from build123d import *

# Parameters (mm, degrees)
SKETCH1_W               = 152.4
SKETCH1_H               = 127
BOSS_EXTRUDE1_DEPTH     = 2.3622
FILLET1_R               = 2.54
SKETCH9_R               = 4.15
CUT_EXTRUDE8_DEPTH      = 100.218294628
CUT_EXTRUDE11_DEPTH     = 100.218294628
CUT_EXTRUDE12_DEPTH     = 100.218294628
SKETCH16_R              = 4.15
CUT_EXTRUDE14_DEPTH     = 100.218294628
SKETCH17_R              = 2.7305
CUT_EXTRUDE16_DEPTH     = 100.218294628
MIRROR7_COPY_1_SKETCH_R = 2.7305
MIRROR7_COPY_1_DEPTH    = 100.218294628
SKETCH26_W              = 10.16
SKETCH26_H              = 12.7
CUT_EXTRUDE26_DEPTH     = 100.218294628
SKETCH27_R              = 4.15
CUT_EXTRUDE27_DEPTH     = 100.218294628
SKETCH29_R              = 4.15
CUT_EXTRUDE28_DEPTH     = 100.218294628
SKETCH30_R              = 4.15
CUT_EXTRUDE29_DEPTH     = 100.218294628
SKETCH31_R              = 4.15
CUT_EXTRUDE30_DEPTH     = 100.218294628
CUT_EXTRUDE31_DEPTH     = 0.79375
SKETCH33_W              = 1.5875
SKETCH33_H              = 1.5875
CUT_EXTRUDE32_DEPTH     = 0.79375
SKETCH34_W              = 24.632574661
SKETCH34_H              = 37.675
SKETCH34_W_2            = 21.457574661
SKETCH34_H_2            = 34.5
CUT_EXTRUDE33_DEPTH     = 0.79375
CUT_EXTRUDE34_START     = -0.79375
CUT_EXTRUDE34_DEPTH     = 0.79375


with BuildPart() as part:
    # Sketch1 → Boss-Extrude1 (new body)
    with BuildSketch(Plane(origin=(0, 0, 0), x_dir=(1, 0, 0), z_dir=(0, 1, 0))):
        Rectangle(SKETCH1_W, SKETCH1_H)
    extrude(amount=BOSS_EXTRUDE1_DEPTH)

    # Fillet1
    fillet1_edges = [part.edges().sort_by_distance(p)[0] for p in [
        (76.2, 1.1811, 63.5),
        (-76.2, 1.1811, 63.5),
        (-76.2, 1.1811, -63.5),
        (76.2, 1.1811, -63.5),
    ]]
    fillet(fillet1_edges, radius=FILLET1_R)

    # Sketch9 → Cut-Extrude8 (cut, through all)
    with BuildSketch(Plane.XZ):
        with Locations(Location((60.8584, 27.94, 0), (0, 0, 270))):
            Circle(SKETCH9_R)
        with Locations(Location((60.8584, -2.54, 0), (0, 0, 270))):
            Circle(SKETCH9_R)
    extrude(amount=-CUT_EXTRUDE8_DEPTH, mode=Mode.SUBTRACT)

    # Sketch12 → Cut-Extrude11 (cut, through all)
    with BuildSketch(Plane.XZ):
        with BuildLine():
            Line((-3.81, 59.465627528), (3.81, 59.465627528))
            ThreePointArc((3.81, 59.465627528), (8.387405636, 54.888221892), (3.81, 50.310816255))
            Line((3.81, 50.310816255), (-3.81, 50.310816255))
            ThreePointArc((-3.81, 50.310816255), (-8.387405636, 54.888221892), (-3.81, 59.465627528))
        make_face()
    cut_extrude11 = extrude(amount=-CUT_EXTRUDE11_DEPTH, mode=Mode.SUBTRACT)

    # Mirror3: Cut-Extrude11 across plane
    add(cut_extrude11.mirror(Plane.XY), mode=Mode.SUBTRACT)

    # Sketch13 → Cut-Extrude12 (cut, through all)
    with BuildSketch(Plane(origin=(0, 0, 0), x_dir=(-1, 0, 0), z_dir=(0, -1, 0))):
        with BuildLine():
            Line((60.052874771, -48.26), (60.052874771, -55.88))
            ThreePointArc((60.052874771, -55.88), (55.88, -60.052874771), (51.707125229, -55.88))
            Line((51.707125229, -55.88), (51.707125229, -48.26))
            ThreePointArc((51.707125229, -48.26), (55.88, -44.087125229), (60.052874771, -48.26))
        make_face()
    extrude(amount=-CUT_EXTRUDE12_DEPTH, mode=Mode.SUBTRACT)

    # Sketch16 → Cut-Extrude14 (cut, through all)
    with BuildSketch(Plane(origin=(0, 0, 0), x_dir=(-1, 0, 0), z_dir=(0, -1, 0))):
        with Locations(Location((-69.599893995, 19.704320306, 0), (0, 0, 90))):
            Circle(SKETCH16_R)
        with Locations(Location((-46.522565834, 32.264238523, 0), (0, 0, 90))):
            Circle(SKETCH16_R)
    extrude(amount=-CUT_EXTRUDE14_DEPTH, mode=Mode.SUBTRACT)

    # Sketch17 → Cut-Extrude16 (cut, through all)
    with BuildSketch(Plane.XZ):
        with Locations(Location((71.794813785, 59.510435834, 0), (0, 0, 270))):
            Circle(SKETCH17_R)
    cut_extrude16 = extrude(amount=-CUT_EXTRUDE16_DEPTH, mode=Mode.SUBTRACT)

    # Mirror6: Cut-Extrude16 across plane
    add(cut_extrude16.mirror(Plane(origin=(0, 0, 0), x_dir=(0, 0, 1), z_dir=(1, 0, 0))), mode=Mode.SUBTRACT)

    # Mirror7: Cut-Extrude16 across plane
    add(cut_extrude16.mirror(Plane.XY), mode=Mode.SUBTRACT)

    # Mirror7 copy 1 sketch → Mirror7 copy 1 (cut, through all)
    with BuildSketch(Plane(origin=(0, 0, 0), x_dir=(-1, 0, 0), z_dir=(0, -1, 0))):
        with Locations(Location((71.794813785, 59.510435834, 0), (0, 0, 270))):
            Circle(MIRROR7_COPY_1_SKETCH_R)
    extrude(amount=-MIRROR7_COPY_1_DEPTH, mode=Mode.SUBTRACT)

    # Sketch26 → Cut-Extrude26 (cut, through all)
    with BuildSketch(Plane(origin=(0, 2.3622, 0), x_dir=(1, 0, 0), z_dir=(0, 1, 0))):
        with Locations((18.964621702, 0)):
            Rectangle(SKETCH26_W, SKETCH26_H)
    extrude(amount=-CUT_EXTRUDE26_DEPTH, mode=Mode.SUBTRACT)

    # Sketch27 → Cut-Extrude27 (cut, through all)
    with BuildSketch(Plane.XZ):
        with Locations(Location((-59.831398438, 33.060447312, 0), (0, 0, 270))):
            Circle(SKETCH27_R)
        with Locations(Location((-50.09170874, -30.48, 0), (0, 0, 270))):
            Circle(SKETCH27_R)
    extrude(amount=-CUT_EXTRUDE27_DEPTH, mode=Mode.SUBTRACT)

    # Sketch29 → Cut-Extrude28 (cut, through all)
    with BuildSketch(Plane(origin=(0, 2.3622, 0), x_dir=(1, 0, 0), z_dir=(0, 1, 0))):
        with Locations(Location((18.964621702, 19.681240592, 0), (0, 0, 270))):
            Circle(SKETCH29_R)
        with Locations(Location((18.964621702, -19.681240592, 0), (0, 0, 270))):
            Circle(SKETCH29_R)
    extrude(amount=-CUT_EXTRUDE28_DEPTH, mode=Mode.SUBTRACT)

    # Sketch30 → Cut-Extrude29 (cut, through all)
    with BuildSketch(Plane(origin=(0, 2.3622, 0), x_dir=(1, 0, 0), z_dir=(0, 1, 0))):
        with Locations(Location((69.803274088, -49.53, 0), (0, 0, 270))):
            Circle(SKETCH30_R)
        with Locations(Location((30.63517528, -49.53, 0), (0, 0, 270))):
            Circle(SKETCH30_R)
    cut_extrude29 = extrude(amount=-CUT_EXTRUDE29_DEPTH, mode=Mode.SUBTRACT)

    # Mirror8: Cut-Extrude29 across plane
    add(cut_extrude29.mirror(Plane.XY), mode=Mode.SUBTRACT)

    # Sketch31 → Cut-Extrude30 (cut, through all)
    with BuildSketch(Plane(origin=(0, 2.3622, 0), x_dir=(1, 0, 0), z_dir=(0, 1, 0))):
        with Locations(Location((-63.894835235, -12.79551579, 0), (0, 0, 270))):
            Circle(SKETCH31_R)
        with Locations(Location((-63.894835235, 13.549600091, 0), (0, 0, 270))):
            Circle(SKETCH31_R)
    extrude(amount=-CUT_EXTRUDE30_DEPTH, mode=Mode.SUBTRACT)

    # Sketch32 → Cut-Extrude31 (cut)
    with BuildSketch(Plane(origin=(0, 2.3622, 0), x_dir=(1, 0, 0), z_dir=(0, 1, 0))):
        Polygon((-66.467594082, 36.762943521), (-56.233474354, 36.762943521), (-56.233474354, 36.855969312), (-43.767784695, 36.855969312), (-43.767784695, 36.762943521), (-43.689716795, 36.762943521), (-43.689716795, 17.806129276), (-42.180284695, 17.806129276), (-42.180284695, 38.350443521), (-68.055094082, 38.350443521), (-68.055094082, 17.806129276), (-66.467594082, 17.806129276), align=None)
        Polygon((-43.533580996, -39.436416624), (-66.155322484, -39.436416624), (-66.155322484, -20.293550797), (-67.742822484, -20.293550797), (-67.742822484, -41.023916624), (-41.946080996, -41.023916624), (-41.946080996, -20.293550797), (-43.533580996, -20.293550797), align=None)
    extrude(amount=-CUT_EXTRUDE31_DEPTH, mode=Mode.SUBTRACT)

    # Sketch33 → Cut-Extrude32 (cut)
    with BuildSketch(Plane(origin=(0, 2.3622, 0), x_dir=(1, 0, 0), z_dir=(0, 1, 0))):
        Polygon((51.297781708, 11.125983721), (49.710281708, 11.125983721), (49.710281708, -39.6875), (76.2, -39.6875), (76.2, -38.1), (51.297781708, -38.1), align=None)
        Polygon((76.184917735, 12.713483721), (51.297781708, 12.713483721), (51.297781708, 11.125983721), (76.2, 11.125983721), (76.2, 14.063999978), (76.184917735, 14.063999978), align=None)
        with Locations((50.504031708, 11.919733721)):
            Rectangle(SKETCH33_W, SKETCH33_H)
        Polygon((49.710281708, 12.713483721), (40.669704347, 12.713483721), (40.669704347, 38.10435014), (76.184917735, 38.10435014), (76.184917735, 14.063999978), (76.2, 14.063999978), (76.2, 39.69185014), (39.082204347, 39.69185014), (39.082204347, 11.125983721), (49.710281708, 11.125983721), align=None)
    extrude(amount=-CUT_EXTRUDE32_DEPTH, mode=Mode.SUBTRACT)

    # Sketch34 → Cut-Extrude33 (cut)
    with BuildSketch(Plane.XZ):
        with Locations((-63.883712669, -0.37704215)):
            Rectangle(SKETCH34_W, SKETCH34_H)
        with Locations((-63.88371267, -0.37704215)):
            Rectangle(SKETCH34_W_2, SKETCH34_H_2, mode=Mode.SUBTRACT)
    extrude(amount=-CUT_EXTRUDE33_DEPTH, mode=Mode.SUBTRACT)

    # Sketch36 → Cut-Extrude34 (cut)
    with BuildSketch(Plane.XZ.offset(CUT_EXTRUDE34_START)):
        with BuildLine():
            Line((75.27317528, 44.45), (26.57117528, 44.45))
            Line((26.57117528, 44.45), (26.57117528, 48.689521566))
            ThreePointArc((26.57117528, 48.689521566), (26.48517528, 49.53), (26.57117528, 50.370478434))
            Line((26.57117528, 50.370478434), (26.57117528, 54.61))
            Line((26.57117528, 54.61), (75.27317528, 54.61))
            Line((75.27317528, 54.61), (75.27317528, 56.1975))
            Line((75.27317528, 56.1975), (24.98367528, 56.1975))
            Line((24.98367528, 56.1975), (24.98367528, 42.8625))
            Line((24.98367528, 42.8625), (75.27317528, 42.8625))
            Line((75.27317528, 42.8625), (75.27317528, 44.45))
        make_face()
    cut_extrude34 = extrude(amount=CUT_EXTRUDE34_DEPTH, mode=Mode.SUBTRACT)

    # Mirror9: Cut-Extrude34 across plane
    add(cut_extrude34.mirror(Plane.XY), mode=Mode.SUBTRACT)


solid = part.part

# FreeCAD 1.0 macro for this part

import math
import FreeCAD as App
import Part
import Sketcher

V = App.Vector
Q = App.Units.Quantity


def edges_at(feature, points):
    """Names of the edges that pass closest to the given points."""
    edges = feature.Shape.Edges
    near = lambda p: min(range(len(edges)), key=lambda i: edges[i].distToShape(Part.Vertex(*p))[0])
    return sorted({f"Edge{near(p) + 1}" for p in points})

doc = App.newDocument("Part")
body = doc.addObject("PartDesign::Body", "Body")

# Sketch on XZ plane
sketch1 = doc.addObject("Sketcher::SketchObject", "Sketch")
body.addObject(sketch1)
sketch1.AttachmentSupport = (doc.XZ_Plane, [""])
sketch1.MapMode = "FlatFace"
sketch1.addGeometry([
    Part.LineSegment(V(-76, -64, 0), V(-76, 64, 0)),
    Part.LineSegment(V(-76, 64, 0), V(76, 64, 0)),
    Part.LineSegment(V(76, 64, 0), V(76, -64, 0)),
    Part.LineSegment(V(76, -64, 0), V(-76, -64, 0)),
], False)
sketch1.addConstraint([
    Sketcher.Constraint("Coincident", 0, 2, 1, 1),
    Sketcher.Constraint("Coincident", 1, 2, 2, 1),
    Sketcher.Constraint("Coincident", 2, 2, 3, 1),
    Sketcher.Constraint("Coincident", 3, 2, 0, 1),
    Sketcher.Constraint("Vertical", 0),
    Sketcher.Constraint("Horizontal", 1),
    Sketcher.Constraint("Vertical", 2),
    Sketcher.Constraint("Horizontal", 3),
    Sketcher.Constraint("Symmetric", 0, 2, 2, 2, -1, 1),
    Sketcher.Constraint("DistanceX", 1, 1, 1, 2, Q("6 in")),
    Sketcher.Constraint("DistanceY", 0, 1, 0, 2, Q("5 in")),
])
pad1 = doc.addObject("PartDesign::Pad", "Pad")
body.addObject(pad1)
pad1.Profile = sketch1
pad1.Length = Q("0.093 in")
pad1.Reversed = True
doc.recompute()

fillet = doc.addObject("PartDesign::Fillet", "Fillet")
body.addObject(fillet)
fillet.Base = (pad1, edges_at(pad1, [
    (76.2, 1.181, 63.5),
    (-76.2, 1.181, 63.5),
    (-76.2, 1.181, -63.5),
    (76.2, 1.181, -63.5),
]))
fillet.Radius = Q("0.1 in")

# Sketch on XZ plane
sketch2 = doc.addObject("Sketcher::SketchObject", "Sketch001")
body.addObject(sketch2)
sketch2.AttachmentSupport = (doc.XZ_Plane, [""])
sketch2.MapMode = "FlatFace"
sketch2.addGeometry([
    Part.Circle(V(60.9, 27.9, 0), V(0, 0, 1), 4.2),
    Part.Circle(V(60.9, -2.5, 0), V(0, 0, 1), 4.2),
], False)
sketch2.addConstraint([
    Sketcher.Constraint("Equal", 0, 1),
    Sketcher.Constraint("Vertical", 0, 3, 1, 3),
    Sketcher.Constraint("DistanceY", -1, 1, 0, 3, Q("1.1 in")),
    Sketcher.Constraint("DistanceY", 1, 3, -1, 1, Q("0.1 in")),
    Sketcher.Constraint("Diameter", 0, 8.3),
    Sketcher.Constraint("DistanceX", -1, 1, 0, 3, Q("2.396 in")),
])
pocket1 = doc.addObject("PartDesign::Pocket", "Pocket")
body.addObject(pocket1)
pocket1.Profile = sketch2
pocket1.Type = "ThroughAll"

# Sketch on XZ plane
sketch3 = doc.addObject("Sketcher::SketchObject", "Sketch002")
body.addObject(sketch3)
sketch3.AttachmentSupport = (doc.XZ_Plane, [""])
sketch3.MapMode = "FlatFace"
sketch3.addGeometry([
    Part.LineSegment(V(3.8, 59.5, 0), V(-3.8, 59.5, 0)),
    Part.ArcOfCircle(Part.Circle(V(-3.8, 54.9, 0), V(0, 0, 1), 4.6), math.radians(90), math.radians(270)),
    Part.LineSegment(V(-3.8, 50.3, 0), V(3.8, 50.3, 0)),
    Part.ArcOfCircle(Part.Circle(V(3.8, 54.9, 0), V(0, 0, 1), 4.6), math.radians(-90), math.radians(90)),
], False)
sketch3.addConstraint([
    Sketcher.Constraint("Tangent", 0, 2, 1, 1),
    Sketcher.Constraint("Tangent", 1, 2, 2, 1),
    Sketcher.Constraint("Tangent", 2, 2, 3, 1),
    Sketcher.Constraint("Tangent", 3, 2, 0, 1),
    Sketcher.Constraint("Horizontal", 0),
    Sketcher.Constraint("Horizontal", 2),
    Sketcher.Constraint("DistanceX", 0, 2, 0, 1, Q("0.3 in")),
    Sketcher.Constraint("DistanceX", 1, 3, -1, 1, Q("0.15 in")),
    Sketcher.Constraint("Radius", 1, 4.577406),
    Sketcher.Constraint("DistanceY", -1, 1, 1, 3, 54.888222),
])
pocket2 = doc.addObject("PartDesign::Pocket", "Pocket001")
body.addObject(pocket2)
pocket2.Profile = sketch3
pocket2.Type = "ThroughAll"
doc.recompute()

mirrored = doc.addObject("PartDesign::Mirrored", "Mirrored")
body.addObject(mirrored)
mirrored.Originals = [pocket2]
mirrored.MirrorPlane = (doc.XY_Plane, [""])
body.Tip = mirrored

# Sketch on XZ plane
sketch4 = doc.addObject("Sketcher::SketchObject", "Sketch003")
body.addObject(sketch4)
sketch4.AttachmentSupport = (doc.XZ_Plane, [""])
sketch4.MapMode = "FlatFace"
sketch4.addGeometry([
    Part.LineSegment(V(-60.1, 55.9, 0), V(-60.1, 48.3, 0)),
    Part.ArcOfCircle(Part.Circle(V(-55.9, 48.3, 0), V(0, 0, 1), 4.2), math.radians(180), math.radians(360)),
    Part.LineSegment(V(-51.7, 48.3, 0), V(-51.7, 55.9, 0)),
    Part.ArcOfCircle(Part.Circle(V(-55.9, 55.9, 0), V(0, 0, 1), 4.2), math.radians(0), math.radians(180)),
], False)
sketch4.addConstraint([
    Sketcher.Constraint("Tangent", 0, 2, 1, 1),
    Sketcher.Constraint("Tangent", 1, 2, 2, 1),
    Sketcher.Constraint("Tangent", 2, 2, 3, 1),
    Sketcher.Constraint("Tangent", 3, 2, 0, 1),
    Sketcher.Constraint("Vertical", 0),
    Sketcher.Constraint("Vertical", 2),
    Sketcher.Constraint("DistanceY", 0, 2, 0, 1, Q("0.3 in")),
    Sketcher.Constraint("DistanceX", 1, 3, -1, 1, Q("2.2 in")),
    Sketcher.Constraint("DistanceY", -1, 1, 1, 3, Q("1.9 in")),
    Sketcher.Constraint("Radius", 1, 4.172875),
])
pocket3 = doc.addObject("PartDesign::Pocket", "Pocket002")
body.addObject(pocket3)
pocket3.Profile = sketch4
pocket3.Type = "ThroughAll"

# Sketch on XZ plane
sketch5 = doc.addObject("Sketcher::SketchObject", "Sketch004")
body.addObject(sketch5)
sketch5.AttachmentSupport = (doc.XZ_Plane, [""])
sketch5.MapMode = "FlatFace"
sketch5.addGeometry([
    Part.Circle(V(69.6, -19.7, 0), V(0, 0, 1), 4.2),
    Part.Circle(V(46.5, -32.3, 0), V(0, 0, 1), 4.2),
], False)
sketch5.addConstraint([
    Sketcher.Constraint("Equal", 0, 1),
    Sketcher.Constraint("Diameter", 0, 8.3),
    Sketcher.Constraint("DistanceY", 0, 3, -1, 1, 19.70432),
    Sketcher.Constraint("DistanceY", 1, 3, -1, 1, 32.264239),
    Sketcher.Constraint("DistanceX", 1, 3, 0, 3, 23.077328),
    Sketcher.Constraint("DistanceX", -1, 1, 0, 3, 69.599894),
])
pocket4 = doc.addObject("PartDesign::Pocket", "Pocket003")
body.addObject(pocket4)
pocket4.Profile = sketch5
pocket4.Type = "ThroughAll"

# Sketch on XZ plane
sketch6 = doc.addObject("Sketcher::SketchObject", "Sketch005")
body.addObject(sketch6)
sketch6.AttachmentSupport = (doc.XZ_Plane, [""])
sketch6.MapMode = "FlatFace"
sketch6.addGeometry(Part.Circle(V(71.8, 59.5, 0), V(0, 0, 1), 2.7), False)
sketch6.addConstraint([
    Sketcher.Constraint("Diameter", 0, Q("0.215 in")),
    Sketcher.Constraint("DistanceX", -1, 1, 0, 3, 71.794814),
    Sketcher.Constraint("DistanceY", -1, 1, 0, 3, 59.510436),
])
pocket5 = doc.addObject("PartDesign::Pocket", "Pocket004")
body.addObject(pocket5)
pocket5.Profile = sketch6
pocket5.Type = "ThroughAll"
doc.recompute()

mirrored2 = doc.addObject("PartDesign::Mirrored", "Mirrored001")
body.addObject(mirrored2)
mirrored2.Originals = [pocket5]
mirrored2.MirrorPlane = (doc.YZ_Plane, [""])
body.Tip = mirrored2
doc.recompute()

mirrored3 = doc.addObject("PartDesign::Mirrored", "Mirrored002")
body.addObject(mirrored3)
mirrored3.Originals = [pocket5]
mirrored3.MirrorPlane = (doc.XY_Plane, [""])
body.Tip = mirrored3

# Sketch on XZ plane
sketch7 = doc.addObject("Sketcher::SketchObject", "Sketch006")
body.addObject(sketch7)
sketch7.AttachmentSupport = (doc.XZ_Plane, [""])
sketch7.MapMode = "FlatFace"
sketch7.addGeometry(Part.Circle(V(-71.8, -59.5, 0), V(0, 0, 1), 2.7), False)
sketch7.addConstraint([
    Sketcher.Constraint("Diameter", 0, Q("0.215 in")),
    Sketcher.Constraint("DistanceX", 0, 3, -1, 1, 71.794814),
    Sketcher.Constraint("DistanceY", 0, 3, -1, 1, 59.510436),
])
pocket6 = doc.addObject("PartDesign::Pocket", "Pocket005")
body.addObject(pocket6)
pocket6.Profile = sketch7
pocket6.Type = "ThroughAll"

# Sketch on XZ plane
sketch8 = doc.addObject("Sketcher::SketchObject", "Sketch007")
body.addObject(sketch8)
sketch8.AttachmentSupport = (doc.XZ_Plane, [""])
sketch8.MapMode = "FlatFace"
sketch8.AttachmentOffset = App.Placement(V(0, 0, -0.093 * 25.4), App.Rotation())
sketch8.addGeometry([
    Part.LineSegment(V(14, -6, 0), V(14, 6, 0)),
    Part.LineSegment(V(14, 6, 0), V(24, 6, 0)),
    Part.LineSegment(V(24, 6, 0), V(24, -6, 0)),
    Part.LineSegment(V(24, -6, 0), V(14, -6, 0)),
], False)
sketch8.addConstraint([
    Sketcher.Constraint("Coincident", 0, 2, 1, 1),
    Sketcher.Constraint("Coincident", 1, 2, 2, 1),
    Sketcher.Constraint("Coincident", 2, 2, 3, 1),
    Sketcher.Constraint("Coincident", 3, 2, 0, 1),
    Sketcher.Constraint("Vertical", 0),
    Sketcher.Constraint("Horizontal", 1),
    Sketcher.Constraint("Vertical", 2),
    Sketcher.Constraint("Horizontal", 3),
    Sketcher.Constraint("DistanceX", 1, 1, 1, 2, Q("0.4 in")),
    Sketcher.Constraint("DistanceY", 0, 1, 0, 2, Q("0.5 in")),
    Sketcher.Constraint("DistanceY", -1, 1, 0, 2, Q("0.25 in")),
    Sketcher.Constraint("DistanceX", -1, 1, 0, 2, 13.884622),
])
pocket7 = doc.addObject("PartDesign::Pocket", "Pocket006")
body.addObject(pocket7)
pocket7.Profile = sketch8
pocket7.Type = "ThroughAll"
pocket7.Reversed = True

# Sketch on XZ plane
sketch9 = doc.addObject("Sketcher::SketchObject", "Sketch008")
body.addObject(sketch9)
sketch9.AttachmentSupport = (doc.XZ_Plane, [""])
sketch9.MapMode = "FlatFace"
sketch9.addGeometry([
    Part.Circle(V(-59.8, 33.1, 0), V(0, 0, 1), 4.2),
    Part.Circle(V(-50.1, -30.5, 0), V(0, 0, 1), 4.2),
], False)
sketch9.addConstraint([
    Sketcher.Constraint("Equal", 0, 1),
    Sketcher.Constraint("DistanceY", 1, 3, -1, 1, Q("1.2 in")),
    Sketcher.Constraint("Diameter", 0, 8.3),
    Sketcher.Constraint("DistanceX", 0, 3, -1, 1, 59.831398),
    Sketcher.Constraint("DistanceX", 1, 3, -1, 1, 50.091709),
    Sketcher.Constraint("DistanceY", -1, 1, 0, 3, 33.060447),
])
pocket8 = doc.addObject("PartDesign::Pocket", "Pocket007")
body.addObject(pocket8)
pocket8.Profile = sketch9
pocket8.Type = "ThroughAll"

# Sketch on XZ plane
sketch10 = doc.addObject("Sketcher::SketchObject", "Sketch009")
body.addObject(sketch10)
sketch10.AttachmentSupport = (doc.XZ_Plane, [""])
sketch10.MapMode = "FlatFace"
sketch10.AttachmentOffset = App.Placement(V(0, 0, -0.093 * 25.4), App.Rotation())
sketch10.addGeometry([
    Part.Circle(V(19, -19.7, 0), V(0, 0, 1), 4.2),
    Part.Circle(V(19, 19.7, 0), V(0, 0, 1), 4.2),
], False)
sketch10.addConstraint([
    Sketcher.Constraint("Equal", 0, 1),
    Sketcher.Constraint("Symmetric", 0, 3, 1, 3, -1),
    Sketcher.Constraint("Diameter", 0, 8.3),
    Sketcher.Constraint("DistanceX", -1, 1, 0, 3, 18.964622),
    Sketcher.Constraint("DistanceY", 0, 3, -1, 1, 19.681241),
])
pocket9 = doc.addObject("PartDesign::Pocket", "Pocket008")
body.addObject(pocket9)
pocket9.Profile = sketch10
pocket9.Type = "ThroughAll"
pocket9.Reversed = True

# Sketch on XZ plane
sketch11 = doc.addObject("Sketcher::SketchObject", "Sketch010")
body.addObject(sketch11)
sketch11.AttachmentSupport = (doc.XZ_Plane, [""])
sketch11.MapMode = "FlatFace"
sketch11.AttachmentOffset = App.Placement(V(0, 0, -0.093 * 25.4), App.Rotation())
sketch11.addGeometry([
    Part.Circle(V(69.8, 49.5, 0), V(0, 0, 1), 4.2),
    Part.Circle(V(30.6, 49.5, 0), V(0, 0, 1), 4.2),
], False)
sketch11.addConstraint([
    Sketcher.Constraint("Equal", 0, 1),
    Sketcher.Constraint("Horizontal", 0, 3, 1, 3),
    Sketcher.Constraint("Diameter", 0, 8.3),
    Sketcher.Constraint("DistanceY", -1, 1, 0, 3, Q("1.95 in")),
    Sketcher.Constraint("DistanceX", 1, 3, 0, 3, 39.168099),
    Sketcher.Constraint("DistanceX", -1, 1, 0, 3, 69.803274),
])
pocket10 = doc.addObject("PartDesign::Pocket", "Pocket009")
body.addObject(pocket10)
pocket10.Profile = sketch11
pocket10.Type = "ThroughAll"
pocket10.Reversed = True
doc.recompute()

mirrored4 = doc.addObject("PartDesign::Mirrored", "Mirrored003")
body.addObject(mirrored4)
mirrored4.Originals = [pocket10]
mirrored4.MirrorPlane = (doc.XY_Plane, [""])
body.Tip = mirrored4

# Sketch on XZ plane
sketch12 = doc.addObject("Sketcher::SketchObject", "Sketch011")
body.addObject(sketch12)
sketch12.AttachmentSupport = (doc.XZ_Plane, [""])
sketch12.MapMode = "FlatFace"
sketch12.AttachmentOffset = App.Placement(V(0, 0, -0.093 * 25.4), App.Rotation())
sketch12.addGeometry([
    Part.Circle(V(-63.9, 12.8, 0), V(0, 0, 1), 4.2),
    Part.Circle(V(-63.9, -13.5, 0), V(0, 0, 1), 4.2),
], False)
sketch12.addConstraint([
    Sketcher.Constraint("Equal", 0, 1),
    Sketcher.Constraint("Vertical", 0, 3, 1, 3),
    Sketcher.Constraint("Diameter", 0, 8.3),
    Sketcher.Constraint("DistanceY", 1, 3, -1, 1, 13.5496),
    Sketcher.Constraint("DistanceX", 0, 3, -1, 1, 63.894835),
    Sketcher.Constraint("DistanceY", -1, 1, 0, 3, 12.795516),
])
pocket11 = doc.addObject("PartDesign::Pocket", "Pocket010")
body.addObject(pocket11)
pocket11.Profile = sketch12
pocket11.Type = "ThroughAll"
pocket11.Reversed = True

# Sketch on XZ plane
sketch13 = doc.addObject("Sketcher::SketchObject", "Sketch012")
body.addObject(sketch13)
sketch13.AttachmentSupport = (doc.XZ_Plane, [""])
sketch13.MapMode = "FlatFace"
sketch13.AttachmentOffset = App.Placement(V(0, 0, -0.093 * 25.4), App.Rotation())
sketch13.addGeometry([
    Part.LineSegment(V(-66.47, -36.76, 0), V(-56.23, -36.76, 0)),  # 0
    Part.LineSegment(V(-56.23, -36.76, 0), V(-56.23, -36.86, 0)),  # 1
    Part.LineSegment(V(-56.23, -36.86, 0), V(-43.77, -36.86, 0)),  # 2
    Part.LineSegment(V(-43.77, -36.86, 0), V(-43.77, -36.76, 0)),  # 3
    Part.LineSegment(V(-43.77, -36.76, 0), V(-43.69, -36.76, 0)),  # 4
    Part.LineSegment(V(-43.69, -36.76, 0), V(-43.69, -17.81, 0)),  # 5
    Part.LineSegment(V(-43.69, -17.81, 0), V(-42.18, -17.81, 0)),  # 6
    Part.LineSegment(V(-42.18, -17.81, 0), V(-42.18, -38.35, 0)),  # 7
    Part.LineSegment(V(-42.18, -38.35, 0), V(-68.06, -38.35, 0)),  # 8
    Part.LineSegment(V(-68.06, -38.35, 0), V(-68.06, -17.81, 0)),  # 9
    Part.LineSegment(V(-68.06, -17.81, 0), V(-66.47, -17.81, 0)),  # 10
    Part.LineSegment(V(-66.47, -17.81, 0), V(-66.47, -36.76, 0)),  # 11
    Part.LineSegment(V(-43.53, 39.44, 0), V(-66.16, 39.44, 0)),  # 12
    Part.LineSegment(V(-66.16, 39.44, 0), V(-66.16, 20.29, 0)),  # 13
    Part.LineSegment(V(-66.16, 20.29, 0), V(-67.74, 20.29, 0)),  # 14
    Part.LineSegment(V(-67.74, 20.29, 0), V(-67.74, 41.02, 0)),  # 15
    Part.LineSegment(V(-67.74, 41.02, 0), V(-41.95, 41.02, 0)),  # 16
    Part.LineSegment(V(-41.95, 41.02, 0), V(-41.95, 20.29, 0)),  # 17
    Part.LineSegment(V(-41.95, 20.29, 0), V(-43.53, 20.29, 0)),  # 18
    Part.LineSegment(V(-43.53, 20.29, 0), V(-43.53, 39.44, 0)),  # 19
], False)
sketch13.addConstraint([
    Sketcher.Constraint("Coincident", 0, 2, 1, 1),
    Sketcher.Constraint("Coincident", 1, 2, 2, 1),
    Sketcher.Constraint("Coincident", 2, 2, 3, 1),
    Sketcher.Constraint("Coincident", 3, 2, 4, 1),
    Sketcher.Constraint("Coincident", 4, 2, 5, 1),
    Sketcher.Constraint("Coincident", 5, 2, 6, 1),
    Sketcher.Constraint("Coincident", 6, 2, 7, 1),
    Sketcher.Constraint("Coincident", 7, 2, 8, 1),
    Sketcher.Constraint("Coincident", 8, 2, 9, 1),
    Sketcher.Constraint("Coincident", 9, 2, 10, 1),
    Sketcher.Constraint("Coincident", 10, 2, 11, 1),
    Sketcher.Constraint("Coincident", 11, 2, 0, 1),
    Sketcher.Constraint("Coincident", 12, 2, 13, 1),
    Sketcher.Constraint("Coincident", 13, 2, 14, 1),
    Sketcher.Constraint("Coincident", 14, 2, 15, 1),
    Sketcher.Constraint("Coincident", 15, 2, 16, 1),
    Sketcher.Constraint("Coincident", 16, 2, 17, 1),
    Sketcher.Constraint("Coincident", 17, 2, 18, 1),
    Sketcher.Constraint("Coincident", 18, 2, 19, 1),
    Sketcher.Constraint("Coincident", 19, 2, 12, 1),
    Sketcher.Constraint("Horizontal", 0),
    Sketcher.Constraint("Vertical", 1),
    Sketcher.Constraint("Horizontal", 2),
    Sketcher.Constraint("Vertical", 3),
    Sketcher.Constraint("Horizontal", 4),
    Sketcher.Constraint("Vertical", 5),
    Sketcher.Constraint("Horizontal", 6),
    Sketcher.Constraint("Vertical", 7),
    Sketcher.Constraint("Horizontal", 8),
    Sketcher.Constraint("Vertical", 9),
    Sketcher.Constraint("Horizontal", 10),
    Sketcher.Constraint("Vertical", 11),
    Sketcher.Constraint("Horizontal", 12),
    Sketcher.Constraint("Vertical", 13),
    Sketcher.Constraint("Horizontal", 14),
    Sketcher.Constraint("Vertical", 15),
    Sketcher.Constraint("Horizontal", 16),
    Sketcher.Constraint("Vertical", 17),
    Sketcher.Constraint("Horizontal", 18),
    Sketcher.Constraint("Vertical", 19),
    Sketcher.Constraint("Horizontal", 0, 2, 3, 2),
    Sketcher.Constraint("Horizontal", 6, 2, 9, 2),
    Sketcher.Constraint("Horizontal", 14, 2, 17, 2),
    Sketcher.Constraint("Equal", 10, 14),
    Sketcher.Constraint("Equal", 14, 18),
    Sketcher.Constraint("DistanceX", 10, 1, 10, 2, Q("0.0625 in")),
    Sketcher.Constraint("DistanceX", 3, 2, 6, 2, Q("0.0625 in")),
    Sketcher.Constraint("DistanceY", 7, 2, 4, 2, Q("0.0625 in")),
    Sketcher.Constraint("DistanceY", 12, 2, 15, 2, Q("0.0625 in")),
    Sketcher.Constraint("DistanceX", 0, 1, 0, 2, 10.23412),
    Sketcher.Constraint("DistanceX", 2, 1, 2, 2, 12.46569),
    Sketcher.Constraint("DistanceX", 12, 2, 12, 1, 22.621741),
    Sketcher.Constraint("DistanceX", 4, 1, 4, 2, 0.078068),
    Sketcher.Constraint("DistanceY", 1, 2, 1, 1, 0.093026),
    Sketcher.Constraint("DistanceY", 5, 1, 5, 2, 18.956814),
    Sketcher.Constraint("DistanceY", 13, 2, 13, 1, 19.142866),
    Sketcher.Constraint("DistanceY", 1, 2, -1, 1, 36.855969),
    Sketcher.Constraint("DistanceY", -1, 1, 13, 2, 20.293551),
    Sketcher.Constraint("DistanceX", 16, 2, -1, 1, 41.946081),
    Sketcher.Constraint("DistanceX", 10, 2, 12, 2, 0.312272),
])
pocket12 = doc.addObject("PartDesign::Pocket", "Pocket011")
body.addObject(pocket12)
pocket12.Profile = sketch13
pocket12.Length = Q("0.03125 in")
pocket12.Reversed = True

# Sketch on XZ plane
sketch14 = doc.addObject("Sketcher::SketchObject", "Sketch013")
body.addObject(sketch14)
sketch14.AttachmentSupport = (doc.XZ_Plane, [""])
sketch14.MapMode = "FlatFace"
sketch14.AttachmentOffset = App.Placement(V(0, 0, -0.093 * 25.4), App.Rotation())
sketch14.addGeometry([
    Part.LineSegment(V(49.7, 39.7, 0), V(76.2, 39.7, 0)),  # 0
    Part.LineSegment(V(76.2, 39.7, 0), V(76.2, 38.1, 0)),  # 1
    Part.LineSegment(V(76.2, 38.1, 0), V(51.3, 38.1, 0)),  # 2
    Part.LineSegment(V(51.3, 38.1, 0), V(51.3, -11.1, 0)),  # 3
    Part.LineSegment(V(51.3, -11.1, 0), V(76.2, -11.1, 0)),  # 4
    Part.LineSegment(V(76.2, -11.1, 0), V(76.2, -39.7, 0)),  # 5
    Part.LineSegment(V(76.2, -39.7, 0), V(39.1, -39.7, 0)),  # 6
    Part.LineSegment(V(39.1, -39.7, 0), V(39.1, -11.1, 0)),  # 7
    Part.LineSegment(V(39.1, -11.1, 0), V(49.7, -11.1, 0)),  # 8
    Part.LineSegment(V(49.7, -11.1, 0), V(49.7, 39.7, 0)),  # 9
    Part.LineSegment(V(76.2, -12.7, 0), V(40.7, -12.7, 0)),  # 10
    Part.LineSegment(V(40.7, -12.7, 0), V(40.7, -38.1, 0)),  # 11
    Part.LineSegment(V(40.7, -38.1, 0), V(76.2, -38.1, 0)),  # 12
    Part.LineSegment(V(76.2, -38.1, 0), V(76.2, -12.7, 0)),  # 13
], False)
sketch14.addConstraint([
    Sketcher.Constraint("Coincident", 0, 2, 1, 1),
    Sketcher.Constraint("Coincident", 1, 2, 2, 1),
    Sketcher.Constraint("Coincident", 2, 2, 3, 1),
    Sketcher.Constraint("Coincident", 3, 2, 4, 1),
    Sketcher.Constraint("Coincident", 4, 2, 5, 1),
    Sketcher.Constraint("Coincident", 5, 2, 6, 1),
    Sketcher.Constraint("Coincident", 6, 2, 7, 1),
    Sketcher.Constraint("Coincident", 7, 2, 8, 1),
    Sketcher.Constraint("Coincident", 8, 2, 9, 1),
    Sketcher.Constraint("Coincident", 9, 2, 0, 1),
    Sketcher.Constraint("Coincident", 10, 2, 11, 1),
    Sketcher.Constraint("Coincident", 11, 2, 12, 1),
    Sketcher.Constraint("Coincident", 12, 2, 13, 1),
    Sketcher.Constraint("Coincident", 13, 2, 10, 1),
    Sketcher.Constraint("Horizontal", 0),
    Sketcher.Constraint("Vertical", 1),
    Sketcher.Constraint("Horizontal", 2),
    Sketcher.Constraint("Vertical", 3),
    Sketcher.Constraint("Horizontal", 4),
    Sketcher.Constraint("Vertical", 5),
    Sketcher.Constraint("Horizontal", 6),
    Sketcher.Constraint("Vertical", 7),
    Sketcher.Constraint("Horizontal", 8),
    Sketcher.Constraint("Vertical", 9),
    Sketcher.Constraint("Horizontal", 10),
    Sketcher.Constraint("Vertical", 11),
    Sketcher.Constraint("Horizontal", 12),
    Sketcher.Constraint("Vertical", 13),
    Sketcher.Constraint("Horizontal", 4, 2, 7, 2),
    Sketcher.Constraint("Vertical", 1, 2, 4, 2),
    Sketcher.Constraint("DistanceX", -1, 1, 0, 2, Q("3 in")),
    Sketcher.Constraint("DistanceY", -1, 1, 1, 2, Q("1.5 in")),
    Sketcher.Constraint("DistanceY", 1, 2, 1, 1, Q("0.0625 in")),
    Sketcher.Constraint("DistanceX", 8, 2, 3, 2, Q("0.0625 in")),
    Sketcher.Constraint("DistanceX", 7, 2, 10, 2, Q("0.0625 in")),
    Sketcher.Constraint("DistanceY", 10, 2, 7, 2, Q("0.0625 in")),
    Sketcher.Constraint("DistanceY", 6, 2, 11, 2, Q("0.0625 in")),
    Sketcher.Constraint("DistanceX", 0, 1, 0, 2, 26.489718),
    Sketcher.Constraint("DistanceX", 6, 2, 6, 1, 37.117796),
    Sketcher.Constraint("DistanceX", 10, 2, 10, 1, 35.515213),
    Sketcher.Constraint("DistanceY", 3, 2, 3, 1, 49.225984),
    Sketcher.Constraint("DistanceY", 5, 2, 5, 1, 28.565866),
])
pocket13 = doc.addObject("PartDesign::Pocket", "Pocket012")
body.addObject(pocket13)
pocket13.Profile = sketch14
pocket13.Length = Q("0.03125 in")
pocket13.Reversed = True

# Sketch on XZ plane
sketch15 = doc.addObject("Sketcher::SketchObject", "Sketch014")
body.addObject(sketch15)
sketch15.AttachmentSupport = (doc.XZ_Plane, [""])
sketch15.MapMode = "FlatFace"
sketch15.addGeometry([
    Part.LineSegment(V(-76, 18, 0), V(-76, -19, 0)),  # 0
    Part.LineSegment(V(-76, -19, 0), V(-52, -19, 0)),  # 1
    Part.LineSegment(V(-52, -19, 0), V(-52, 18, 0)),  # 2
    Part.LineSegment(V(-52, 18, 0), V(-76, 18, 0)),  # 3
    Part.LineSegment(V(-53, -18, 0), V(-75, -18, 0)),  # 4
    Part.LineSegment(V(-75, -18, 0), V(-75, 17, 0)),  # 5
    Part.LineSegment(V(-75, 17, 0), V(-53, 17, 0)),  # 6
    Part.LineSegment(V(-53, 17, 0), V(-53, -18, 0)),  # 7
], False)
sketch15.addConstraint([
    Sketcher.Constraint("Coincident", 0, 2, 1, 1),
    Sketcher.Constraint("Coincident", 1, 2, 2, 1),
    Sketcher.Constraint("Coincident", 2, 2, 3, 1),
    Sketcher.Constraint("Coincident", 3, 2, 0, 1),
    Sketcher.Constraint("Coincident", 4, 2, 5, 1),
    Sketcher.Constraint("Coincident", 5, 2, 6, 1),
    Sketcher.Constraint("Coincident", 6, 2, 7, 1),
    Sketcher.Constraint("Coincident", 7, 2, 4, 1),
    Sketcher.Constraint("Vertical", 0),
    Sketcher.Constraint("Horizontal", 1),
    Sketcher.Constraint("Vertical", 2),
    Sketcher.Constraint("Horizontal", 3),
    Sketcher.Constraint("Horizontal", 4),
    Sketcher.Constraint("Vertical", 5),
    Sketcher.Constraint("Horizontal", 6),
    Sketcher.Constraint("Vertical", 7),
    Sketcher.Constraint("DistanceX", 0, 2, -1, 1, Q("3 in")),
    Sketcher.Constraint("DistanceX", 4, 2, -1, 1, Q("2.9375 in")),
    Sketcher.Constraint("DistanceY", 0, 2, 4, 2, Q("0.0625 in")),
    Sketcher.Constraint("DistanceY", 5, 2, 3, 2, Q("0.0625 in")),
    Sketcher.Constraint("DistanceX", 6, 2, 2, 2, Q("0.0625 in")),
    Sketcher.Constraint("DistanceY", 0, 2, 0, 1, 37.675),
    Sketcher.Constraint("DistanceX", 1, 1, 1, 2, 24.632575),
    Sketcher.Constraint("DistanceY", 0, 2, -1, 1, 19.214542),
])
pocket14 = doc.addObject("PartDesign::Pocket", "Pocket013")
body.addObject(pocket14)
pocket14.Profile = sketch15
pocket14.Length = Q("0.03125 in")

# Sketch on XZ plane
sketch16 = doc.addObject("Sketcher::SketchObject", "Sketch015")
body.addObject(sketch16)
sketch16.AttachmentSupport = (doc.XZ_Plane, [""])
sketch16.MapMode = "FlatFace"
sketch16.AttachmentOffset = App.Placement(V(0, 0, -0.03125 * 25.4), App.Rotation())
sketch16.addGeometry([
    Part.LineSegment(V(75.3, 44.5, 0), V(26.6, 44.5, 0)),  # 0
    Part.LineSegment(V(26.6, 44.5, 0), V(26.6, 48.7, 0)),  # 1
    Part.ArcOfCircle(Part.Circle(V(30.6, 49.5, 0), V(0, 0, 1), 4.1), math.radians(168), math.radians(192)),  # 2
    Part.LineSegment(V(26.6, 50.4, 0), V(26.6, 54.6, 0)),  # 3
    Part.LineSegment(V(26.6, 54.6, 0), V(75.3, 54.6, 0)),  # 4
    Part.LineSegment(V(75.3, 54.6, 0), V(75.3, 56.2, 0)),  # 5
    Part.LineSegment(V(75.3, 56.2, 0), V(25, 56.2, 0)),  # 6
    Part.LineSegment(V(25, 56.2, 0), V(25, 42.9, 0)),  # 7
    Part.LineSegment(V(25, 42.9, 0), V(75.3, 42.9, 0)),  # 8
    Part.LineSegment(V(75.3, 42.9, 0), V(75.3, 44.5, 0)),  # 9
], False)
sketch16.addConstraint([
    Sketcher.Constraint("Coincident", 0, 2, 1, 1),
    Sketcher.Constraint("Coincident", 1, 2, 2, 2),
    Sketcher.Constraint("Coincident", 2, 1, 3, 1),
    Sketcher.Constraint("Coincident", 3, 2, 4, 1),
    Sketcher.Constraint("Coincident", 4, 2, 5, 1),
    Sketcher.Constraint("Coincident", 5, 2, 6, 1),
    Sketcher.Constraint("Coincident", 6, 2, 7, 1),
    Sketcher.Constraint("Coincident", 7, 2, 8, 1),
    Sketcher.Constraint("Coincident", 8, 2, 9, 1),
    Sketcher.Constraint("Coincident", 9, 2, 0, 1),
    Sketcher.Constraint("Horizontal", 0),
    Sketcher.Constraint("Vertical", 1),
    Sketcher.Constraint("Vertical", 3),
    Sketcher.Constraint("Horizontal", 4),
    Sketcher.Constraint("Vertical", 5),
    Sketcher.Constraint("Horizontal", 6),
    Sketcher.Constraint("Vertical", 7),
    Sketcher.Constraint("Horizontal", 8),
    Sketcher.Constraint("Vertical", 9),
    Sketcher.Constraint("Vertical", 1, 2, 2, 1),
    Sketcher.Constraint("Vertical", 5, 2, 8, 2),
    Sketcher.Constraint("Equal", 1, 3),
    Sketcher.Constraint("Equal", 5, 9),
    Sketcher.Constraint("DistanceY", 0, 2, 2, 3, Q("0.2 in")),
    Sketcher.Constraint("DistanceY", 5, 1, 5, 2, Q("0.0625 in")),
    Sketcher.Constraint("DistanceY", -1, 1, 2, 3, Q("1.95 in")),
    Sketcher.Constraint("Radius", 2, 4.15),
    Sketcher.Constraint("DistanceX", 0, 2, 2, 3, Q("0.16 in")),
    Sketcher.Constraint("DistanceX", 6, 2, 3, 2, Q("0.0625 in")),
    Sketcher.Constraint("DistanceX", 0, 2, 0, 1, 48.702),
    Sketcher.Constraint("DistanceX", -1, 1, 2, 3, 30.635175),
])
pocket15 = doc.addObject("PartDesign::Pocket", "Pocket014")
body.addObject(pocket15)
pocket15.Profile = sketch16
pocket15.Length = Q("0.03125 in")
pocket15.Reversed = True
doc.recompute()

mirrored5 = doc.addObject("PartDesign::Mirrored", "Mirrored004")
body.addObject(mirrored5)
mirrored5.Originals = [pocket15]
mirrored5.MirrorPlane = (doc.XY_Plane, [""])
body.Tip = mirrored5

doc.recompute()
